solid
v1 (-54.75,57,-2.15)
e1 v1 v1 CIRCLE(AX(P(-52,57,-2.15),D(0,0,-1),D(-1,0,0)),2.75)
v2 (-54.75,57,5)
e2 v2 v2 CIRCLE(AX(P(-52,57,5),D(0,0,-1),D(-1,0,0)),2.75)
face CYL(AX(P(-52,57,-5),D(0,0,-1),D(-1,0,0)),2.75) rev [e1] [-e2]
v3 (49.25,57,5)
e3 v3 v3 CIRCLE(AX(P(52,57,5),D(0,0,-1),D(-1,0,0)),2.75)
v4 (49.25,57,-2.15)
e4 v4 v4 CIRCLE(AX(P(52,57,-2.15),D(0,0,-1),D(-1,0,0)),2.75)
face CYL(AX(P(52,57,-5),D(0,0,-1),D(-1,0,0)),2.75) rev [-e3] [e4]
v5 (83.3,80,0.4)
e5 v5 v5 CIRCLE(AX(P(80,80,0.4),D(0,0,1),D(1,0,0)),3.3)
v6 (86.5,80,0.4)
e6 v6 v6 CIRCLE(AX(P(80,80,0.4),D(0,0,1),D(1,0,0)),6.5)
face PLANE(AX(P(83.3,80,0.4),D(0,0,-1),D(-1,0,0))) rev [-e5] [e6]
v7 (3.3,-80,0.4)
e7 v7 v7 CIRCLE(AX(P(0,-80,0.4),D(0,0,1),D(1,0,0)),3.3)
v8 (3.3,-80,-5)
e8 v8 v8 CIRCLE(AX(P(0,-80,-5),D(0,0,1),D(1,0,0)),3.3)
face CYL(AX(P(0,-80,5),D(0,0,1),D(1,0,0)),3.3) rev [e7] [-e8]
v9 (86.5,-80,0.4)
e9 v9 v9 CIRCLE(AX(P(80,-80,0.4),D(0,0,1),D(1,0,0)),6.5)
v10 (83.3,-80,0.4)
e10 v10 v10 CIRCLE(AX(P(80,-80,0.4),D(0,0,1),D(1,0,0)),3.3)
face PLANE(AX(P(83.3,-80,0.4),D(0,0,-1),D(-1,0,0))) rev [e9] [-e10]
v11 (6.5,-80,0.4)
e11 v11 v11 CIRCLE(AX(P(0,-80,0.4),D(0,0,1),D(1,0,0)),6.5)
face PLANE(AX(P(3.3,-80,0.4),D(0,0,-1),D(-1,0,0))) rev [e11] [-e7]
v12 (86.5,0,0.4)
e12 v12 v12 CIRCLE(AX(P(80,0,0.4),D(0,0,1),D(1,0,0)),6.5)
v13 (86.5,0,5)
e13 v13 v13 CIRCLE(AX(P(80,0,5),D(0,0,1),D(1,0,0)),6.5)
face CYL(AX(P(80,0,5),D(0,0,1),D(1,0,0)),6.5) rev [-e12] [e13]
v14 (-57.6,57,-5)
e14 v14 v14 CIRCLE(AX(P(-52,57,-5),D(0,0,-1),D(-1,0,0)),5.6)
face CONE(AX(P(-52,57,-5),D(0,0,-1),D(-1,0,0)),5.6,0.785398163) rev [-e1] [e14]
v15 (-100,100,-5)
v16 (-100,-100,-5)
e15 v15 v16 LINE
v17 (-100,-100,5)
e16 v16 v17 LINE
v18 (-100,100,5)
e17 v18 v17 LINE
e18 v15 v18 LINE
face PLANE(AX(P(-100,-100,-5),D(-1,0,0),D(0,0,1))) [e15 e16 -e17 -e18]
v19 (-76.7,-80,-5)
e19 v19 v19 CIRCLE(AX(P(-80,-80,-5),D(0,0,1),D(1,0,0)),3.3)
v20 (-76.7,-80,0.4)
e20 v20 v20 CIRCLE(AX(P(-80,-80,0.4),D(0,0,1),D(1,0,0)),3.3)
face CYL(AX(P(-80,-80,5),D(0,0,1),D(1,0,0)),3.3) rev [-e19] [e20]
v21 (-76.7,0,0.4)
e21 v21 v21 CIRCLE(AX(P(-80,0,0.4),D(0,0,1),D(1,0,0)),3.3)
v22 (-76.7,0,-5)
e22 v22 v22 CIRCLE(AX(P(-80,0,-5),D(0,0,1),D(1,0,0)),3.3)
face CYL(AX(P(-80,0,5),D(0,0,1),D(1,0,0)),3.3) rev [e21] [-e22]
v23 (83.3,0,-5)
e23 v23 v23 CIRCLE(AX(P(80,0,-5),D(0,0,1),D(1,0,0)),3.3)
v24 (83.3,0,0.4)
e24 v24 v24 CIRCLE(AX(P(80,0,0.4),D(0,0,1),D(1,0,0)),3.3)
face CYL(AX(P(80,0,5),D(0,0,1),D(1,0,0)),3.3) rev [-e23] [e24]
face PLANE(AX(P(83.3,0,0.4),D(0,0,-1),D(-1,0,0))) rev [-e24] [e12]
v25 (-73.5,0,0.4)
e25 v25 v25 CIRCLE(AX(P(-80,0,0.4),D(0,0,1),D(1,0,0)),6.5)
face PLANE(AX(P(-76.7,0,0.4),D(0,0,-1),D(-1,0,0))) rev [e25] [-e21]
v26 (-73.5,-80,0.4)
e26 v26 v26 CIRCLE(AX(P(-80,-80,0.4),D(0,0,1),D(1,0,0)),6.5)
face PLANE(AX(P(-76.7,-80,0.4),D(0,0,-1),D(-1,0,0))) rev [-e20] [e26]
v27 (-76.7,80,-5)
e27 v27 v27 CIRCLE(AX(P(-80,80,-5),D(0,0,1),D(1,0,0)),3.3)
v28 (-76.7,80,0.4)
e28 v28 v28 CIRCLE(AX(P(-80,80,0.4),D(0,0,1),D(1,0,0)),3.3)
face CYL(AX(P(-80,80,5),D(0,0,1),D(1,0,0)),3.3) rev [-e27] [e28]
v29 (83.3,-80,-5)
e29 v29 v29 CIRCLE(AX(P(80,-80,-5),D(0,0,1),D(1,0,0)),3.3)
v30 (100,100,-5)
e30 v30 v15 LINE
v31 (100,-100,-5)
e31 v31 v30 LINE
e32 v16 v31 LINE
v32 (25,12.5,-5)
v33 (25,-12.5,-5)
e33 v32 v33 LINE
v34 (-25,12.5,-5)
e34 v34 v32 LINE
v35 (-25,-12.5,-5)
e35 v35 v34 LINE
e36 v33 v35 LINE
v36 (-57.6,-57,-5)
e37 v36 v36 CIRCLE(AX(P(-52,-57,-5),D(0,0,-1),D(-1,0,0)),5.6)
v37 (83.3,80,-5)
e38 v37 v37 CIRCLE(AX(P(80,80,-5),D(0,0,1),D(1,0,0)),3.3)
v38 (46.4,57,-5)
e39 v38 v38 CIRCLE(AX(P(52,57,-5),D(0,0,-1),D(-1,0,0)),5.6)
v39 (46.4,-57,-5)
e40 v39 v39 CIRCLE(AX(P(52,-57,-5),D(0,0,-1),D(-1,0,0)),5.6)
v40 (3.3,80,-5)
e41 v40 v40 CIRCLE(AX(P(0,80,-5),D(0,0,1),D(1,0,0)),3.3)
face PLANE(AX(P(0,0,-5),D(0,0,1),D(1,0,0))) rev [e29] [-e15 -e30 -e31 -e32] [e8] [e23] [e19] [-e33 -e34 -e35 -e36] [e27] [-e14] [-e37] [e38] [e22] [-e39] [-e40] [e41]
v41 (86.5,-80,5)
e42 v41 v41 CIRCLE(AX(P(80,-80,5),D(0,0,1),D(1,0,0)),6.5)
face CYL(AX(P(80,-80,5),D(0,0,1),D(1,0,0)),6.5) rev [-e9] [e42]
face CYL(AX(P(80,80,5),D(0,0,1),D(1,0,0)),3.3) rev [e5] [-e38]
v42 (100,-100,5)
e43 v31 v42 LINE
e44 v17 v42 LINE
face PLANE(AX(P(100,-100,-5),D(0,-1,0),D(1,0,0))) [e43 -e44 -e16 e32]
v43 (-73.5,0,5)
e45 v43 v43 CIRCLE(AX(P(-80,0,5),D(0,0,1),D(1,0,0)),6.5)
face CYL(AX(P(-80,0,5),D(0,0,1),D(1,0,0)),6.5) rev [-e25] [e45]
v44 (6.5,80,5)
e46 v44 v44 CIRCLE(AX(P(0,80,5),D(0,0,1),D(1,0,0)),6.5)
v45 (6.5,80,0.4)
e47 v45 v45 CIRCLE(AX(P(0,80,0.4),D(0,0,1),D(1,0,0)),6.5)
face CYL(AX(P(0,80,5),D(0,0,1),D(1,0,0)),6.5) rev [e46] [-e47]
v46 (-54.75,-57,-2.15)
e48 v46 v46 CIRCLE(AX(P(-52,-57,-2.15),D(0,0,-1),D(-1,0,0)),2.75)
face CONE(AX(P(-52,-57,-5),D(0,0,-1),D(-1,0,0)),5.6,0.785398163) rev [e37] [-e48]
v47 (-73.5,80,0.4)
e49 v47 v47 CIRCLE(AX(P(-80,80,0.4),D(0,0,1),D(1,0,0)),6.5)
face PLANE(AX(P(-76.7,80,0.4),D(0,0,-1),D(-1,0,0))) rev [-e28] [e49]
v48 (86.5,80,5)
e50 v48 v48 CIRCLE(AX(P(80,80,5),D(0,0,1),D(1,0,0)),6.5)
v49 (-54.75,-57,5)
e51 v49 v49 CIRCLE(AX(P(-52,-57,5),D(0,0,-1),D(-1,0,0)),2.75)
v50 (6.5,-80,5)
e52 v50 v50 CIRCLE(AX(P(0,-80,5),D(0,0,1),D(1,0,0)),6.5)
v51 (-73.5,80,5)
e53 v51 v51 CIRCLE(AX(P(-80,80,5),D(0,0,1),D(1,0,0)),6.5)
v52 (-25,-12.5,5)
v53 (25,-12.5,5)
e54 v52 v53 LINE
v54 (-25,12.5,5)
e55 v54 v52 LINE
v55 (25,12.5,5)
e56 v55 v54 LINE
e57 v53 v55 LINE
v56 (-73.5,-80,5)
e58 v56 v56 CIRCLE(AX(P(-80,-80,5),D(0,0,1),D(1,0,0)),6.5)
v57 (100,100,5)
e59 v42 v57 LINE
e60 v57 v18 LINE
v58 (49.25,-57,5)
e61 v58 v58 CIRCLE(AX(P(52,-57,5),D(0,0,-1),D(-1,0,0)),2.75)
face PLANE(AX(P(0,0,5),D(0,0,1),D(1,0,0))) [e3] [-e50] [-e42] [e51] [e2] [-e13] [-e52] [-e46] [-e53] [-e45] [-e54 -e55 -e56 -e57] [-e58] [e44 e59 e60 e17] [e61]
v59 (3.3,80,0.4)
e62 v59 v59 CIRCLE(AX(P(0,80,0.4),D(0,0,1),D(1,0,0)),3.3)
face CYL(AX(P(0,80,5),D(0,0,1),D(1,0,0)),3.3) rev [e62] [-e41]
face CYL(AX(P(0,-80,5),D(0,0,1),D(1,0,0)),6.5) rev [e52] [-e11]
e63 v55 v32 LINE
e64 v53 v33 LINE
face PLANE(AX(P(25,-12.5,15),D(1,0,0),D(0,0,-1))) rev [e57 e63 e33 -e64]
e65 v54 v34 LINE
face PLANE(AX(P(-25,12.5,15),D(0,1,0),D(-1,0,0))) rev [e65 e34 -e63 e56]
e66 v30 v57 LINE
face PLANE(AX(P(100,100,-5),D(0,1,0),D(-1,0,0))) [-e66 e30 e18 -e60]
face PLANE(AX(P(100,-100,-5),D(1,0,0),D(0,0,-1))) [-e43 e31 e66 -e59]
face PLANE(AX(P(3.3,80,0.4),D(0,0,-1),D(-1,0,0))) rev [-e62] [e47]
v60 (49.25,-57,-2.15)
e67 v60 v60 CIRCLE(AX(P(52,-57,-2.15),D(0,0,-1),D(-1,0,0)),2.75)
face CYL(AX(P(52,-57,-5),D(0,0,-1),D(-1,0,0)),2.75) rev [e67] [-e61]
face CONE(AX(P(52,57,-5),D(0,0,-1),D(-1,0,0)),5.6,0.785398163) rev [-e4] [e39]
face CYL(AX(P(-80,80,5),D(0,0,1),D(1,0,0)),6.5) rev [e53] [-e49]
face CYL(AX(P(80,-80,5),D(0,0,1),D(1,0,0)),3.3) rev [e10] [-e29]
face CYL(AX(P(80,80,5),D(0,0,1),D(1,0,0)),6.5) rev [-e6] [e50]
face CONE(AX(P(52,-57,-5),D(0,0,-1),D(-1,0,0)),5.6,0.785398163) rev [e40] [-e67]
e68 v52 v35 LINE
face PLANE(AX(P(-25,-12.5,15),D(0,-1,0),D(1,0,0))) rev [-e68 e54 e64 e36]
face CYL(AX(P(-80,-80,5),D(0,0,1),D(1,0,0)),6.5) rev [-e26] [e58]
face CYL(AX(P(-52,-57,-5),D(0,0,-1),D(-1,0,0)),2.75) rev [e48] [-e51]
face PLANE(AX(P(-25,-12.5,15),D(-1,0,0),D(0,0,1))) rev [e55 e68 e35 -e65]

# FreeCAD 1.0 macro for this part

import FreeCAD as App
import Part
import Sketcher

V = App.Vector
Q = App.Units.Quantity

doc = App.newDocument("Part")
body = doc.addObject("PartDesign::Body", "Body")

# Sketch on XY plane
sketch1 = body.newObject("Sketcher::SketchObject", "Sketch")
sketch1.AttachmentSupport = (doc.getObject("XY_Plane"), [""])
sketch1.MapMode = "FlatFace"
sketch1.addGeometry([
    Part.LineSegment(V(-100, 100, 0), V(-100, -100, 0)),
    Part.LineSegment(V(-100, -100, 0), V(100, -100, 0)),
    Part.LineSegment(V(100, -100, 0), V(100, 100, 0)),
    Part.LineSegment(V(100, 100, 0), V(-100, 100, 0)),
], False)
sketch1.addConstraint([
    Sketcher.Constraint("Coincident", 0, 2, 1, 1),
    Sketcher.Constraint("Coincident", 1, 2, 2, 1),
    Sketcher.Constraint("Coincident", 2, 2, 3, 1),
    Sketcher.Constraint("Coincident", 3, 2, 0, 1),
    Sketcher.Constraint("Vertical", 0),
    Sketcher.Constraint("Horizontal", 1),
    Sketcher.Constraint("Vertical", 2),
    Sketcher.Constraint("Horizontal", 3),
    Sketcher.Constraint("Symmetric", 0, 2, 2, 2, -1, 1),
    Sketcher.Constraint("Equal", 3, 0),
    Sketcher.Constraint("DistanceX", 1, 1, 1, 2, Q("200 mm")),
])
pad1 = body.newObject("PartDesign::Pad", "Pad")
pad1.Profile = sketch1
pad1.Type = "TwoLengths"
pad1.Length = 5
pad1.Length2 = 5

# Sketch on XY plane
sketch2 = body.newObject("Sketcher::SketchObject", "Sketch001")
sketch2.AttachmentSupport = (doc.getObject("XY_Plane"), [""])
sketch2.MapMode = "FlatFace"
sketch2.AttachmentOffset = App.Placement(V(0, 0, -5), App.Rotation())
sketch2.addGeometry([
    Part.Circle(V(52, 57, 0), V(0, 0, 1), 2.5),
    Part.Circle(V(-52, 57, 0), V(0, 0, 1), 2.5),
    Part.Circle(V(-52, -57, 0), V(0, 0, 1), 2.5),
    Part.Circle(V(52, -57, 0), V(0, 0, 1), 2.5),
], False)
sketch2.addConstraint([
    Sketcher.Constraint("Equal", 0, 1),
    Sketcher.Constraint("Equal", 1, 2),
    Sketcher.Constraint("Equal", 2, 3),
    Sketcher.Constraint("Symmetric", 0, 3, 2, 3, -1, 1),
    Sketcher.Constraint("Symmetric", 1, 3, 3, 3, -1, 1),
    Sketcher.Constraint("Symmetric", 0, 3, 1, 3, -2),
    Sketcher.Constraint("Diameter", 0, Q("5 mm")),
    Sketcher.Constraint("DistanceX", -1, 1, 0, 3, Q("52 mm")),
    Sketcher.Constraint("DistanceY", -1, 1, 0, 3, Q("57 mm")),
])
doc.recompute()
hole = body.newObject("PartDesign::Hole", "Hole")
hole.Profile = sketch2
hole.ThreadType = "None"
hole.Diameter = 5
hole.DepthType = "ThroughAll"
hole.Reversed = True

# Sketch on XY plane
sketch3 = body.newObject("Sketcher::SketchObject", "Sketch002")
sketch3.AttachmentSupport = (doc.getObject("XY_Plane"), [""])
sketch3.MapMode = "FlatFace"
sketch3.AttachmentOffset = App.Placement(V(0, 0, -5), App.Rotation())
sketch3.addGeometry([
    Part.LineSegment(V(25, 12, 0), V(25, -12, 0)),
    Part.LineSegment(V(25, -12, 0), V(-25, -12, 0)),
    Part.LineSegment(V(-25, -12, 0), V(-25, 12, 0)),
    Part.LineSegment(V(-25, 12, 0), V(25, 12, 0)),
], False)
sketch3.addConstraint([
    Sketcher.Constraint("Coincident", 0, 2, 1, 1),
    Sketcher.Constraint("Coincident", 1, 2, 2, 1),
    Sketcher.Constraint("Coincident", 2, 2, 3, 1),
    Sketcher.Constraint("Coincident", 3, 2, 0, 1),
    Sketcher.Constraint("Vertical", 0),
    Sketcher.Constraint("Horizontal", 1),
    Sketcher.Constraint("Vertical", 2),
    Sketcher.Constraint("Horizontal", 3),
    Sketcher.Constraint("Symmetric", 0, 2, 2, 2, -1, 1),
    Sketcher.Constraint("DistanceX", 1, 2, 1, 1, Q("50 mm")),
    Sketcher.Constraint("DistanceY", 0, 2, 0, 1, Q("25 mm")),
])
pocket1 = body.newObject("PartDesign::Pocket", "Pocket")
pocket1.Profile = sketch3
pocket1.Length = 20
pocket1.Reversed = True

# Sketch on XY plane
sketch4 = body.newObject("Sketcher::SketchObject", "Sketch003")
sketch4.AttachmentSupport = (doc.getObject("XY_Plane"), [""])
sketch4.MapMode = "FlatFace"
sketch4.AttachmentOffset = App.Placement(V(0, 0, 5), App.Rotation())
sketch4.addGeometry([
    Part.Circle(V(-80, 80, 0), V(0, 0, 1), 3.3),  # 0
    Part.Circle(V(-80, 0, 0), V(0, 0, 1), 3.3),  # 1
    Part.Circle(V(-80, -80, 0), V(0, 0, 1), 3.3),  # 2
    Part.Circle(V(80, 80, 0), V(0, 0, 1), 3.3),  # 3
    Part.Circle(V(80, 0, 0), V(0, 0, 1), 3.3),  # 4
    Part.Circle(V(80, -80, 0), V(0, 0, 1), 3.3),  # 5
    Part.Circle(V(0, 80, 0), V(0, 0, 1), 3.3),  # 6
    Part.Circle(V(0, -80, 0), V(0, 0, 1), 3.3),  # 7
], False)
sketch4.addConstraint([
    Sketcher.Constraint("Equal", 0, 1),
    Sketcher.Constraint("Equal", 1, 2),
    Sketcher.Constraint("Equal", 2, 3),
    Sketcher.Constraint("Equal", 3, 4),
    Sketcher.Constraint("Equal", 4, 5),
    Sketcher.Constraint("Equal", 5, 6),
    Sketcher.Constraint("Equal", 6, 7),
    Sketcher.Constraint("Symmetric", 2, 3, 3, 3, -1, 1),
    Sketcher.Constraint("Symmetric", 1, 3, 4, 3, -1, 1),
    Sketcher.Constraint("Symmetric", 0, 3, 5, 3, -1, 1),
    Sketcher.Constraint("Symmetric", 6, 3, 7, 3, -1, 1),
    Sketcher.Constraint("Symmetric", 0, 3, 3, 3, -2),
    Sketcher.Constraint("PointOnObject", 1, 3, -1),
    Sketcher.Constraint("PointOnObject", 6, 3, -2),
    Sketcher.Constraint("Horizontal", 3, 3, 6, 3),
    Sketcher.Constraint("Vertical", 0, 3, 1, 3),
    Sketcher.Constraint("Diameter", 0, Q("6.6 mm")),
    Sketcher.Constraint("DistanceX", 0, 3, -1, 1, Q("80 mm")),
    Sketcher.Constraint("DistanceY", -1, 1, 0, 3, Q("80 mm")),
])
doc.recompute()
hole2 = body.newObject("PartDesign::Hole", "Hole001")
hole2.Profile = sketch4
hole2.ThreadType = "None"
hole2.Diameter = 6.6
hole2.DepthType = "ThroughAll"
hole2.HoleCutType = "Counterbore"
hole2.HoleCutDiameter = 13
hole2.HoleCutDepth = 4.6

# Sketch on XY plane
sketch5 = body.newObject("Sketcher::SketchObject", "Sketch004")
sketch5.AttachmentSupport = (doc.getObject("XY_Plane"), [""])
sketch5.MapMode = "FlatFace"
sketch5.AttachmentOffset = App.Placement(V(0, 0, -5), App.Rotation())
sketch5.addGeometry([
    Part.Circle(V(52, 57, 0), V(0, 0, 1), 2.8),
    Part.Circle(V(-52, 57, 0), V(0, 0, 1), 2.8),
    Part.Circle(V(-52, -57, 0), V(0, 0, 1), 2.8),
    Part.Circle(V(52, -57, 0), V(0, 0, 1), 2.8),
], False)
sketch5.addConstraint([
    Sketcher.Constraint("Equal", 0, 1),
    Sketcher.Constraint("Equal", 1, 2),
    Sketcher.Constraint("Equal", 2, 3),
    Sketcher.Constraint("Symmetric", 0, 3, 2, 3, -1, 1),
    Sketcher.Constraint("Symmetric", 1, 3, 3, 3, -1, 1),
    Sketcher.Constraint("Symmetric", 0, 3, 1, 3, -2),
    Sketcher.Constraint("Diameter", 0, Q("5.5 mm")),
    Sketcher.Constraint("DistanceX", -1, 1, 0, 3, Q("52 mm")),
    Sketcher.Constraint("DistanceY", -1, 1, 0, 3, Q("57 mm")),
])
doc.recompute()
hole3 = body.newObject("PartDesign::Hole", "Hole002")
hole3.Profile = sketch5
hole3.ThreadType = "None"
hole3.Diameter = 5.5
hole3.DepthType = "ThroughAll"
hole3.HoleCutType = "Countersink"
hole3.HoleCutDiameter = 11.2
hole3.HoleCutCountersinkAngle = 90
hole3.Reversed = True

doc.recompute()
